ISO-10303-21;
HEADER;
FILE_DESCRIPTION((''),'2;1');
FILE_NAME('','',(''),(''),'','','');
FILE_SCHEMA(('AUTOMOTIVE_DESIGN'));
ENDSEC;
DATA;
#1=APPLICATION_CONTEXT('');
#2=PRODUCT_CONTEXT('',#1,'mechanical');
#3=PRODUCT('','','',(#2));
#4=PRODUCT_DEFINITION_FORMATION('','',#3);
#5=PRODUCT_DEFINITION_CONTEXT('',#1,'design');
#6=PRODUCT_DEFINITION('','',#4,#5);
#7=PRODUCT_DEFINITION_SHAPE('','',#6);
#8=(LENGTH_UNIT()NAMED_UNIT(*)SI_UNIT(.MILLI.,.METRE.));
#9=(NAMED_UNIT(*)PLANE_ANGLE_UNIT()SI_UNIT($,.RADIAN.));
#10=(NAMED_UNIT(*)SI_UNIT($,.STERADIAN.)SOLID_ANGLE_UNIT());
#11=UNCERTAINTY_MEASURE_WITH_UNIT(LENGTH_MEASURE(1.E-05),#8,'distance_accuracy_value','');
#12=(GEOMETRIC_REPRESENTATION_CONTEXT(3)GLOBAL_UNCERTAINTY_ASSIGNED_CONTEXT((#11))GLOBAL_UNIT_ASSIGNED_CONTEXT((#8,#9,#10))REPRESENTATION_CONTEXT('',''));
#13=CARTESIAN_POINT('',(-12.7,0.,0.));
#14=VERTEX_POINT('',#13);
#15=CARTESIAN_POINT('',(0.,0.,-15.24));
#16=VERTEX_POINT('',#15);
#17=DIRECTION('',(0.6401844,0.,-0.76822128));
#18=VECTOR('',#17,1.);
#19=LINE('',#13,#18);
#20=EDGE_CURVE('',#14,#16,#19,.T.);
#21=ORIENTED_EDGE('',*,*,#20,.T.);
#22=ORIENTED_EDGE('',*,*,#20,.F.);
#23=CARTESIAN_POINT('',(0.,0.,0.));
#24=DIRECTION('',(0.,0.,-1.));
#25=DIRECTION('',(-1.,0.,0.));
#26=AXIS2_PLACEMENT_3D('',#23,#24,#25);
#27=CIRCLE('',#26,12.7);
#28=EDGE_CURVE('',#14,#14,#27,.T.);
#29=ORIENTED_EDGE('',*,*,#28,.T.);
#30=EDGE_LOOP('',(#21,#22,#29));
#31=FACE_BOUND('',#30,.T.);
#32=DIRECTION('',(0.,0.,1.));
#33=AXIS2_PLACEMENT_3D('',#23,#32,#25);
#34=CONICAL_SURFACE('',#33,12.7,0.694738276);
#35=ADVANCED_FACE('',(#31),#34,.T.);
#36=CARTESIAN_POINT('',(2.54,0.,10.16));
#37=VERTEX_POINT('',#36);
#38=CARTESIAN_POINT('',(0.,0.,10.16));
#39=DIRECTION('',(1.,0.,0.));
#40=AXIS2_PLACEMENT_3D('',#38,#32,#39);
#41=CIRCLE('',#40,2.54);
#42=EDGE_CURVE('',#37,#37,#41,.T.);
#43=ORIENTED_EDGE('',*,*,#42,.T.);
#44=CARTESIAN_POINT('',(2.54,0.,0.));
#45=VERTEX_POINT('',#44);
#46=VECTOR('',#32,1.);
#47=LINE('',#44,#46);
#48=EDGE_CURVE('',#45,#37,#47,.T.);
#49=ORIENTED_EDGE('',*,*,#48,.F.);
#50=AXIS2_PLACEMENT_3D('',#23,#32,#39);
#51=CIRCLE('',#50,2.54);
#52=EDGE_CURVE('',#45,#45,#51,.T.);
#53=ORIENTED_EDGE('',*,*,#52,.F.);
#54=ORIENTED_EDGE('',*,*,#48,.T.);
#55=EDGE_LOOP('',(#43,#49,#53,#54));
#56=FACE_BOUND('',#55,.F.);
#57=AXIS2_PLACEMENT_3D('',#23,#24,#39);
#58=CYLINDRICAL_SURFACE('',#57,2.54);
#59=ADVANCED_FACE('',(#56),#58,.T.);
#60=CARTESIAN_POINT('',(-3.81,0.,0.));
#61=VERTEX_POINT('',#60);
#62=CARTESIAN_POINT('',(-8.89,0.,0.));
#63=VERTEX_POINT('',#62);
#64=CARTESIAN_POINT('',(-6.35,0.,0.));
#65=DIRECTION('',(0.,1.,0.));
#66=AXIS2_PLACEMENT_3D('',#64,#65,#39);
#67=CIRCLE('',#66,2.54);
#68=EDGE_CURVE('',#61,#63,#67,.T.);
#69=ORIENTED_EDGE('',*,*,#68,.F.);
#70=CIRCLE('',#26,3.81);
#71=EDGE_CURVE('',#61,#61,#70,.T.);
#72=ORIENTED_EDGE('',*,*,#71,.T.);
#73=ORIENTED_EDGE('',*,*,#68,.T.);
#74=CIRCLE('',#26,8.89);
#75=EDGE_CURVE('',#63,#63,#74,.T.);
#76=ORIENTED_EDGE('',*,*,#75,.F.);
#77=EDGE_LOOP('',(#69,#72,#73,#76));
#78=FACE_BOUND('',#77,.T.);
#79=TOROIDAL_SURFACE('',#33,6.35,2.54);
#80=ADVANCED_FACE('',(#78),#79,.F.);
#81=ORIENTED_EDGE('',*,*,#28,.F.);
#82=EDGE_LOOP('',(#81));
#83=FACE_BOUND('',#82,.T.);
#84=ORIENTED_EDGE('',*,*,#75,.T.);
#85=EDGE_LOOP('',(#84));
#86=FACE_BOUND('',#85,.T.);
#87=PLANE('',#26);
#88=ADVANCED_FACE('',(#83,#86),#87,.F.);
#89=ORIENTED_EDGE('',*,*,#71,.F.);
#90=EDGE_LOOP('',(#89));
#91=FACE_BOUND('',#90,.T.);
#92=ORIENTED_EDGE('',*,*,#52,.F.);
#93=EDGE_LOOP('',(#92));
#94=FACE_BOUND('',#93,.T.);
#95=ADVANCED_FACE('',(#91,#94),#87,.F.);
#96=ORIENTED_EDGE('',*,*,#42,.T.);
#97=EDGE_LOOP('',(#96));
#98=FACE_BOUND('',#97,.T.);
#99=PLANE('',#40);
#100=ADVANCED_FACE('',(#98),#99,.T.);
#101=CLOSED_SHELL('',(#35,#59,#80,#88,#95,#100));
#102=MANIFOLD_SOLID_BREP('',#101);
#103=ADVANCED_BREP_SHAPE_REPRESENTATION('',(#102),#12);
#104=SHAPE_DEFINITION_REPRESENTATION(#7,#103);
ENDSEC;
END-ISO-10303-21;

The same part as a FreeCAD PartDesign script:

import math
import FreeCAD as App
import Part
import Sketcher
Q = App.Units.Quantity

doc = App.newDocument("Part")
body = doc.addObject("PartDesign::Body", "Body")

sketch1 = body.newObject("Sketcher::SketchObject", "Sketch")
sketch1.AttachmentSupport = (doc.getObject("XZ_Plane"), [""])
sketch1.MapMode = "FlatFace"
sketch1.addGeometry(Part.LineSegment(App.Vector(0, -15.2, 0), App.Vector(0, 0, 0)), False)
sketch1.addGeometry(Part.LineSegment(App.Vector(0, 0, 0), App.Vector(-3.8, 0, 0)), False)
sketch1.addGeometry(Part.ArcOfCircle(Part.Circle(App.Vector(-6.3, 0, 0), App.Vector(0, 0, 1), 2.5), math.radians(180), math.radians(360)), False)
sketch1.addGeometry(Part.LineSegment(App.Vector(-8.9, 0, 0), App.Vector(-12.7, 0, 0)), False)
sketch1.addGeometry(Part.LineSegment(App.Vector(-12.7, 0, 0), App.Vector(0, -15.2, 0)), False)
sketch1.addConstraint(Sketcher.Constraint("Coincident", 0, 2, 1, 1))
sketch1.addConstraint(Sketcher.Constraint("Coincident", 1, 2, 2, 2))
sketch1.addConstraint(Sketcher.Constraint("Coincident", 2, 1, 3, 1))
sketch1.addConstraint(Sketcher.Constraint("Coincident", 3, 2, 4, 1))
sketch1.addConstraint(Sketcher.Constraint("Coincident", 4, 2, 0, 1))
sketch1.addConstraint(Sketcher.Constraint("Vertical", 0))
sketch1.addConstraint(Sketcher.Constraint("Horizontal", 1))
sketch1.addConstraint(Sketcher.Constraint("Horizontal", 3))
sketch1.addConstraint(Sketcher.Constraint("Coincident", 0, 2, -1, 1))
sketch1.addConstraint(Sketcher.Constraint("PointOnObject", 2, 3, -1))
sketch1.addConstraint(Sketcher.Constraint("PointOnObject", 2, 1, -1))
sketch1.addConstraint(Sketcher.Constraint("Equal", 1, 3))
sketch1.addConstraint(Sketcher.Constraint("Radius", 2, Q("0.1 in")))
sketch1.addConstraint(Sketcher.Constraint("DistanceY", 0, 1, 0, 2, Q("0.6 in")))
sketch1.addConstraint(Sketcher.Constraint("DistanceX", 1, 2, 1, 1, Q("0.15 in")))
revolution = body.newObject("PartDesign::Revolution", "Revolution")
revolution.Profile = sketch1
revolution.ReferenceAxis = (sketch1, ["V_Axis"])
revolution.Angle = 360

sketch2 = body.newObject("Sketcher::SketchObject", "Sketch001")
sketch2.AttachmentSupport = (doc.getObject("XY_Plane"), [""])
sketch2.MapMode = "FlatFace"
sketch2.addGeometry(Part.Circle(App.Vector(0, 0, 0), App.Vector(0, 0, 1), 2.5), False)
sketch2.addConstraint(Sketcher.Constraint("Coincident", 0, 3, -1, 1))
sketch2.addConstraint(Sketcher.Constraint("Diameter", 0, Q("0.2 in")))
pad1 = body.newObject("PartDesign::Pad", "Pad")
pad1.Profile = sketch2
pad1.Length = Q("0.4 in")

doc.recompute()
